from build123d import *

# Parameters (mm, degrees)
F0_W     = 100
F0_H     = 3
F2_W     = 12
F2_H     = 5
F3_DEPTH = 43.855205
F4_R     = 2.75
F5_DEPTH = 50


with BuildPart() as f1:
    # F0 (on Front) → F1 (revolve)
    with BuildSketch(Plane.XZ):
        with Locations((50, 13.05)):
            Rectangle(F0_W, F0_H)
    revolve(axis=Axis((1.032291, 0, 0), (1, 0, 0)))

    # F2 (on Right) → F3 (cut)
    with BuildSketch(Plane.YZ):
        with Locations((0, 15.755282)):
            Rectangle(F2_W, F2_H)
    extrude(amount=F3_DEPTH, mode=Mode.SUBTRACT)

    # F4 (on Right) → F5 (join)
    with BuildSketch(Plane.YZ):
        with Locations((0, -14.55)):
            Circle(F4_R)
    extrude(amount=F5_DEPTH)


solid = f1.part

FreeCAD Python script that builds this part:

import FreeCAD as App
import Part
import Sketcher

doc = App.newDocument("Part")
body = doc.addObject("PartDesign::Body", "Body")

# Sketch on XZ plane
sketch1 = doc.addObject("Sketcher::SketchObject", "Sketch")
body.addObject(sketch1)
sketch1.AttachmentSupport = (doc.XZ_Plane, [""])
sketch1.MapMode = "FlatFace"
sketch1.addGeometry(Part.LineSegment(App.Vector(0, 14.55, 0), App.Vector(0, 11.55, 0)), False)
sketch1.addGeometry(Part.LineSegment(App.Vector(0, 11.55, 0), App.Vector(100, 11.55, 0)), False)
sketch1.addGeometry(Part.LineSegment(App.Vector(100, 11.55, 0), App.Vector(100, 14.55, 0)), False)
sketch1.addGeometry(Part.LineSegment(App.Vector(100, 14.55, 0), App.Vector(0, 14.55, 0)), False)
sketch1.addConstraint(Sketcher.Constraint("Coincident", 0, 2, 1, 1))
sketch1.addConstraint(Sketcher.Constraint("Coincident", 1, 2, 2, 1))
sketch1.addConstraint(Sketcher.Constraint("Coincident", 2, 2, 3, 1))
sketch1.addConstraint(Sketcher.Constraint("Coincident", 3, 2, 0, 1))
sketch1.addConstraint(Sketcher.Constraint("Vertical", 0))
sketch1.addConstraint(Sketcher.Constraint("Horizontal", 1))
sketch1.addConstraint(Sketcher.Constraint("Vertical", 2))
sketch1.addConstraint(Sketcher.Constraint("Horizontal", 3))
sketch1.addConstraint(Sketcher.Constraint("PointOnObject", 0, 2, -2))
sketch1.addConstraint(Sketcher.Constraint("DistanceX", 1, 1, 1, 2, 100.0))
sketch1.addConstraint(Sketcher.Constraint("DistanceY", 0, 2, 0, 1, 3.0))
sketch1.addConstraint(Sketcher.Constraint("DistanceY", -1, 1, 0, 2, 11.55))
revolution = doc.addObject("PartDesign::Revolution", "Revolution")
body.addObject(revolution)
revolution.Profile = sketch1
revolution.ReferenceAxis = (sketch1, ["H_Axis"])
revolution.Angle = 360

# Sketch on YZ plane
sketch2 = doc.addObject("Sketcher::SketchObject", "Sketch001")
body.addObject(sketch2)
sketch2.AttachmentSupport = (doc.YZ_Plane, [""])
sketch2.MapMode = "FlatFace"
sketch2.addGeometry(Part.LineSegment(App.Vector(-6, 18.255282, 0), App.Vector(-6, 13.255282, 0)), False)
sketch2.addGeometry(Part.LineSegment(App.Vector(-6, 13.255282, 0), App.Vector(6, 13.255282, 0)), False)
sketch2.addGeometry(Part.LineSegment(App.Vector(6, 13.255282, 0), App.Vector(6, 18.255282, 0)), False)
sketch2.addGeometry(Part.LineSegment(App.Vector(6, 18.255282, 0), App.Vector(-6, 18.255282, 0)), False)
sketch2.addConstraint(Sketcher.Constraint("Coincident", 0, 2, 1, 1))
sketch2.addConstraint(Sketcher.Constraint("Coincident", 1, 2, 2, 1))
sketch2.addConstraint(Sketcher.Constraint("Coincident", 2, 2, 3, 1))
sketch2.addConstraint(Sketcher.Constraint("Coincident", 3, 2, 0, 1))
sketch2.addConstraint(Sketcher.Constraint("Vertical", 0))
sketch2.addConstraint(Sketcher.Constraint("Horizontal", 1))
sketch2.addConstraint(Sketcher.Constraint("Vertical", 2))
sketch2.addConstraint(Sketcher.Constraint("Horizontal", 3))
sketch2.addConstraint(Sketcher.Constraint("DistanceX", 1, 1, 1, 2, 12.0))
sketch2.addConstraint(Sketcher.Constraint("DistanceY", 0, 2, 0, 1, 5.0))
sketch2.addConstraint(Sketcher.Constraint("DistanceX", 0, 2, -1, 1, 6.0))
sketch2.addConstraint(Sketcher.Constraint("DistanceY", -1, 1, 0, 2, 13.255282))
pocket1 = doc.addObject("PartDesign::Pocket", "Pocket")
body.addObject(pocket1)
pocket1.Profile = sketch2
pocket1.Length = 43.855205
pocket1.Reversed = True

# Sketch on YZ plane
sketch3 = doc.addObject("Sketcher::SketchObject", "Sketch002")
body.addObject(sketch3)
sketch3.AttachmentSupport = (doc.YZ_Plane, [""])
sketch3.MapMode = "FlatFace"
sketch3.addGeometry(Part.Circle(App.Vector(0, -14.55, 0), App.Vector(0, 0, 1), 2.75), False)
sketch3.addConstraint(Sketcher.Constraint("PointOnObject", 0, 3, -2))
sketch3.addConstraint(Sketcher.Constraint("Diameter", 0, 5.5))
sketch3.addConstraint(Sketcher.Constraint("DistanceY", 0, 3, -1, 1, 14.55))
pad1 = doc.addObject("PartDesign::Pad", "Pad")
body.addObject(pad1)
pad1.Profile = sketch3
pad1.Length = 50

doc.recompute()
